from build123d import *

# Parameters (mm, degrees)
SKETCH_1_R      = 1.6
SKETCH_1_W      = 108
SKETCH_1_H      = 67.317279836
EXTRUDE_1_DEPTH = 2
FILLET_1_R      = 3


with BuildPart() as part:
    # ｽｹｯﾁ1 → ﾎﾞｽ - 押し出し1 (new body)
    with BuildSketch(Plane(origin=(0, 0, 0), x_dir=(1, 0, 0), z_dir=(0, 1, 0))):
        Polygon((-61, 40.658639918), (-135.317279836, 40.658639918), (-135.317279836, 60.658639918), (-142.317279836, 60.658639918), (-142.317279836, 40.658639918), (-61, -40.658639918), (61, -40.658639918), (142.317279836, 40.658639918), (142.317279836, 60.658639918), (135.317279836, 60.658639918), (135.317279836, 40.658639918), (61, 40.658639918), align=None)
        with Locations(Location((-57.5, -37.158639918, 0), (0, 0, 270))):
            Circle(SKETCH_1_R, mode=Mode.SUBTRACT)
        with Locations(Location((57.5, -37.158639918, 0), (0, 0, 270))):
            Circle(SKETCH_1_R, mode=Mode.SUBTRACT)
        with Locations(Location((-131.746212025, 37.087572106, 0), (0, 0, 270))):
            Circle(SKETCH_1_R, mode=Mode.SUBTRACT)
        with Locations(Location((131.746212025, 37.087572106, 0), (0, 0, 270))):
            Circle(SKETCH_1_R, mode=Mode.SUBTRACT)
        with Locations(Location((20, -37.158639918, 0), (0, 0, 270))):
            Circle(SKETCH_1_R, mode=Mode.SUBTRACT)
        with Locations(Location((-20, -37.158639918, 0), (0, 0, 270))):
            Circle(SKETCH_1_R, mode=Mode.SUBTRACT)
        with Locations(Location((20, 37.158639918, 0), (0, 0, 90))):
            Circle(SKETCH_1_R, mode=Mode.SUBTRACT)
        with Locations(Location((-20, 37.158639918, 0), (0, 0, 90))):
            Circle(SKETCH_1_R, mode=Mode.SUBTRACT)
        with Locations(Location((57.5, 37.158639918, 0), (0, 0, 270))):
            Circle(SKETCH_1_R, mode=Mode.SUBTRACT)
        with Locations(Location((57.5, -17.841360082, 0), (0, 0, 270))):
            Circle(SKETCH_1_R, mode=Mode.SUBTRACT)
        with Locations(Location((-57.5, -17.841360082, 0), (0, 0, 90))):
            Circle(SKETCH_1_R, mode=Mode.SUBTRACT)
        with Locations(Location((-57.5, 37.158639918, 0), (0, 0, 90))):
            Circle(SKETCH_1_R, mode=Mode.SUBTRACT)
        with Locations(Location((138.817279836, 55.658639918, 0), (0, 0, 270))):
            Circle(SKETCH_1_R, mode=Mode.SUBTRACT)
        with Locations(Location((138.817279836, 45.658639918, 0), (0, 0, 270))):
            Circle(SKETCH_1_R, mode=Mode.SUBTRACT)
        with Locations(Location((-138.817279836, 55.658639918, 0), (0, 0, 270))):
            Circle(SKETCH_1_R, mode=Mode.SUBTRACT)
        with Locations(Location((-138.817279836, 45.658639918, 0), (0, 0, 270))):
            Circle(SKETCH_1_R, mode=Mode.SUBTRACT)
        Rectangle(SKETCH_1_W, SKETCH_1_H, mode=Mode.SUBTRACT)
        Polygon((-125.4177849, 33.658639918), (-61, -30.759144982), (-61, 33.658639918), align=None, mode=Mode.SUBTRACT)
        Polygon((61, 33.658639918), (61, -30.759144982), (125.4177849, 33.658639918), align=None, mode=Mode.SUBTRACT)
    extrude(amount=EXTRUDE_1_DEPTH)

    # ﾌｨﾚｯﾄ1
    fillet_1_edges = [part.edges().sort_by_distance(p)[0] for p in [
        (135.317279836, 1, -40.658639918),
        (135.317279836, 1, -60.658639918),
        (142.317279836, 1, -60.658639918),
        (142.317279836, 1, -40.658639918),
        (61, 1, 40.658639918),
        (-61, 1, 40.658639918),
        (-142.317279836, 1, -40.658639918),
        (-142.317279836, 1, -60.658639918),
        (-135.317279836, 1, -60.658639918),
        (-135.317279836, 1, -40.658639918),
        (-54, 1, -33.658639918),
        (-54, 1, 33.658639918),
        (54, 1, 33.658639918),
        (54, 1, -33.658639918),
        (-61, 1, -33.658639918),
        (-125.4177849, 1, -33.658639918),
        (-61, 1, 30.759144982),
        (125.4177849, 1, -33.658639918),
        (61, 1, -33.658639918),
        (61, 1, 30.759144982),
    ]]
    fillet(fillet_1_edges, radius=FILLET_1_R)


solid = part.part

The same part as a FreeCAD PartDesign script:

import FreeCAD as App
import Part
import Sketcher


def edges_at(feature, points):
    """Names of the edges that pass closest to the given points."""
    edges = feature.Shape.Edges
    near = lambda p: min(range(len(edges)), key=lambda i: edges[i].distToShape(Part.Vertex(*p))[0])
    return sorted({f"Edge{near(p) + 1}" for p in points})

doc = App.newDocument("Part")
params = doc.addObject("Spreadsheet::Sheet", "Params")
for row, (alias, value) in enumerate([
    ("sketch1_diameter", "3.2 mm"),
    ("sketch1_width", "7 mm"),
    ("sketch1_width2", "122 mm"),
    ("sketch1_width3", "108 mm"),
    ("sketch1_height", "20 mm"),
    ("pad1_length", "2 mm"),
    ("fillet_radius", "3 mm"),
], start=1):
    params.set(f"A{row}", alias)
    params.set(f"B{row}", "=" + value)
    params.setAlias(f"B{row}", alias)

body = doc.addObject("PartDesign::Body", "Body")

# Sketch on XZ plane
sketch1 = body.newObject("Sketcher::SketchObject", "Sketch")
sketch1.AttachmentSupport = (doc.getObject("XZ_Plane"), [""])
sketch1.MapMode = "FlatFace"
sketch1.addGeometry([
    Part.LineSegment(App.Vector(-135.3, -40.7, 0), App.Vector(-135.3, -60.7, 0)),  # 0
    Part.LineSegment(App.Vector(-135.3, -60.7, 0), App.Vector(-142.3, -60.7, 0)),  # 1
    Part.LineSegment(App.Vector(-142.3, -60.7, 0), App.Vector(-142.3, -40.7, 0)),  # 2
    Part.LineSegment(App.Vector(-142.3, -40.7, 0), App.Vector(-61, 40.7, 0)),  # 3
    Part.LineSegment(App.Vector(-61, 40.7, 0), App.Vector(61, 40.7, 0)),  # 4
    Part.LineSegment(App.Vector(61, 40.7, 0), App.Vector(142.3, -40.7, 0)),  # 5
    Part.LineSegment(App.Vector(142.3, -40.7, 0), App.Vector(142.3, -60.7, 0)),  # 6
    Part.LineSegment(App.Vector(142.3, -60.7, 0), App.Vector(135.3, -60.7, 0)),  # 7
    Part.LineSegment(App.Vector(135.3, -60.7, 0), App.Vector(135.3, -40.7, 0)),  # 8
    Part.LineSegment(App.Vector(135.3, -40.7, 0), App.Vector(-135.3, -40.7, 0)),  # 9
    Part.Circle(App.Vector(-57.5, 37.2, 0), App.Vector(0, 0, 1), 1.6),  # 10
    Part.Circle(App.Vector(-20, 37.2, 0), App.Vector(0, 0, 1), 1.6),  # 11
    Part.Circle(App.Vector(-57.5, 17.8, 0), App.Vector(0, 0, 1), 1.6),  # 12
    Part.LineSegment(App.Vector(-61, 30.8, 0), App.Vector(-125.4, -33.7, 0)),  # 13
    Part.LineSegment(App.Vector(-125.4, -33.7, 0), App.Vector(-61, -33.7, 0)),  # 14
    Part.LineSegment(App.Vector(-61, -33.7, 0), App.Vector(-61, 30.8, 0)),  # 15
    Part.Circle(App.Vector(20, 37.2, 0), App.Vector(0, 0, 1), 1.6),  # 16
    Part.Circle(App.Vector(57.5, 37.2, 0), App.Vector(0, 0, 1), 1.6),  # 17
    Part.Circle(App.Vector(57.5, 17.8, 0), App.Vector(0, 0, 1), 1.6),  # 18
    Part.LineSegment(App.Vector(54, 33.7, 0), App.Vector(-54, 33.7, 0)),  # 19
    Part.LineSegment(App.Vector(-54, 33.7, 0), App.Vector(-54, -33.7, 0)),  # 20
    Part.LineSegment(App.Vector(-54, -33.7, 0), App.Vector(54, -33.7, 0)),  # 21
    Part.LineSegment(App.Vector(54, -33.7, 0), App.Vector(54, 33.7, 0)),  # 22
    Part.LineSegment(App.Vector(61, 30.8, 0), App.Vector(61, -33.7, 0)),  # 23
    Part.LineSegment(App.Vector(61, -33.7, 0), App.Vector(125.4, -33.7, 0)),  # 24
    Part.LineSegment(App.Vector(125.4, -33.7, 0), App.Vector(61, 30.8, 0)),  # 25
    Part.Circle(App.Vector(-131.7, -37.1, 0), App.Vector(0, 0, 1), 1.6),  # 26
    Part.Circle(App.Vector(-138.8, -45.7, 0), App.Vector(0, 0, 1), 1.6),  # 27
    Part.Circle(App.Vector(-138.8, -55.7, 0), App.Vector(0, 0, 1), 1.6),  # 28
    Part.Circle(App.Vector(-57.5, -37.2, 0), App.Vector(0, 0, 1), 1.6),  # 29
    Part.Circle(App.Vector(-20, -37.2, 0), App.Vector(0, 0, 1), 1.6),  # 30
    Part.Circle(App.Vector(20, -37.2, 0), App.Vector(0, 0, 1), 1.6),  # 31
    Part.Circle(App.Vector(57.5, -37.2, 0), App.Vector(0, 0, 1), 1.6),  # 32
    Part.Circle(App.Vector(131.7, -37.1, 0), App.Vector(0, 0, 1), 1.6),  # 33
    Part.Circle(App.Vector(138.8, -45.7, 0), App.Vector(0, 0, 1), 1.6),  # 34
    Part.Circle(App.Vector(138.8, -55.7, 0), App.Vector(0, 0, 1), 1.6),  # 35
], False)
sketch1.addConstraint([
    Sketcher.Constraint("Coincident", 0, 2, 1, 1),
    Sketcher.Constraint("Coincident", 1, 2, 2, 1),
    Sketcher.Constraint("Coincident", 2, 2, 3, 1),
    Sketcher.Constraint("Coincident", 3, 2, 4, 1),
    Sketcher.Constraint("Coincident", 4, 2, 5, 1),
    Sketcher.Constraint("Coincident", 5, 2, 6, 1),
    Sketcher.Constraint("Coincident", 6, 2, 7, 1),
    Sketcher.Constraint("Coincident", 7, 2, 8, 1),
    Sketcher.Constraint("Coincident", 8, 2, 9, 1),
    Sketcher.Constraint("Coincident", 9, 2, 0, 1),
    Sketcher.Constraint("Coincident", 13, 2, 14, 1),
    Sketcher.Constraint("Coincident", 14, 2, 15, 1),
    Sketcher.Constraint("Coincident", 15, 2, 13, 1),
    Sketcher.Constraint("Coincident", 19, 2, 20, 1),
    Sketcher.Constraint("Coincident", 20, 2, 21, 1),
    Sketcher.Constraint("Coincident", 21, 2, 22, 1),
    Sketcher.Constraint("Coincident", 22, 2, 19, 1),
    Sketcher.Constraint("Coincident", 23, 2, 24, 1),
    Sketcher.Constraint("Coincident", 24, 2, 25, 1),
    Sketcher.Constraint("Coincident", 25, 2, 23, 1),
    Sketcher.Constraint("Vertical", 0),
    Sketcher.Constraint("Horizontal", 1),
    Sketcher.Constraint("Vertical", 2),
    Sketcher.Constraint("Horizontal", 4),
    Sketcher.Constraint("Vertical", 6),
    Sketcher.Constraint("Horizontal", 7),
    Sketcher.Constraint("Vertical", 8),
    Sketcher.Constraint("Horizontal", 9),
    Sketcher.Constraint("Horizontal", 14),
    Sketcher.Constraint("Vertical", 15),
    Sketcher.Constraint("Horizontal", 19),
    Sketcher.Constraint("Vertical", 20),
    Sketcher.Constraint("Horizontal", 21),
    Sketcher.Constraint("Vertical", 22),
    Sketcher.Constraint("Vertical", 23),
    Sketcher.Constraint("Horizontal", 24),
    Sketcher.Constraint("Equal", 10, 11),
    Sketcher.Constraint("Equal", 11, 12),
    Sketcher.Constraint("Equal", 12, 16),
    Sketcher.Constraint("Equal", 16, 17),
    Sketcher.Constraint("Equal", 17, 18),
    Sketcher.Constraint("Equal", 18, 26),
    Sketcher.Constraint("Equal", 26, 27),
    Sketcher.Constraint("Equal", 27, 28),
    Sketcher.Constraint("Equal", 28, 29),
    Sketcher.Constraint("Equal", 29, 30),
    Sketcher.Constraint("Equal", 30, 31),
    Sketcher.Constraint("Equal", 31, 32),
    Sketcher.Constraint("Equal", 32, 33),
    Sketcher.Constraint("Equal", 33, 34),
    Sketcher.Constraint("Equal", 34, 35),
    Sketcher.Constraint("Symmetric", 17, 3, 29, 3, -1, 1),
    Sketcher.Constraint("Symmetric", 16, 3, 30, 3, -1, 1),
    Sketcher.Constraint("Symmetric", 11, 3, 31, 3, -1, 1),
    Sketcher.Constraint("Symmetric", 10, 3, 32, 3, -1, 1),
    Sketcher.Constraint("Symmetric", 19, 2, 21, 2, -1, 1),
    Sketcher.Constraint("Symmetric", 11, 3, 16, 3, -2),
    Sketcher.Constraint("Symmetric", 10, 3, 17, 3, -2),
    Sketcher.Constraint("Symmetric", 12, 3, 18, 3, -2),
    Sketcher.Constraint("Symmetric", 26, 3, 33, 3, -2),
    Sketcher.Constraint("Symmetric", 27, 3, 34, 3, -2),
    Sketcher.Constraint("Symmetric", 28, 3, 35, 3, -2),
    Sketcher.Constraint("Symmetric", 2, 2, 5, 2, -2),
    Sketcher.Constraint("Symmetric", 0, 2, 7, 2, -2),
    Sketcher.Constraint("Symmetric", 14, 2, 23, 2, -2),
    Sketcher.Constraint("Perpendicular", 3, 5),
    Sketcher.Constraint("Perpendicular", 5, 13),
    Sketcher.Constraint("Perpendicular", 13, 25),
    Sketcher.Constraint("Horizontal", 10, 3, 11, 3),
    Sketcher.Constraint("Horizontal", 5, 2, 8, 2),
    Sketcher.Constraint("Horizontal", 14, 2, 20, 2),
    Sketcher.Constraint("Horizontal", 15, 2, 25, 2),
    Sketcher.Constraint("Vertical", 10, 3, 12, 3),
    Sketcher.Constraint("Vertical", 27, 3, 28, 3),
    Sketcher.Constraint("Vertical", 3, 2, 14, 2),
    Sketcher.Constraint("Vertical", 4, 2, 23, 2),
    Sketcher.Constraint("Diameter", 10, 3.2),
    Sketcher.Constraint("DistanceX", 1, 2, 1, 1, 7.0),
    Sketcher.Constraint("DistanceX", 4, 1, 4, 2, 122.0),
    Sketcher.Constraint("DistanceX", 19, 2, 19, 1, 108.0),
    Sketcher.Constraint("DistanceY", 0, 2, 0, 1, 20.0),
    Sketcher.Constraint("Distance", 3, 115.0),
    Sketcher.Constraint("DistanceX", 11, 3, -1, 1, 20.0),
    Sketcher.Constraint("DistanceX", 10, 3, 17, 3, 115.0),
    Sketcher.Constraint("DistanceY", 28, 3, 27, 3, 10.0),
    Sketcher.Constraint("DistanceY", 29, 3, 12, 3, 55.0),
    Sketcher.Constraint("DistanceY", 0, 2, 28, 3, 5.0),
    Sketcher.Constraint("DistanceY", 9, 2, 13, 2, 7.0),
    Sketcher.Constraint("DistanceY", 19, 2, 3, 2, 7.0),
    Sketcher.Constraint("DistanceY", 27, 3, 12, 3, 63.5),
    Sketcher.Constraint("DistanceX", 28, 3, 0, 2, 3.5),
    Sketcher.Constraint("DistanceX", 14, 1, 14, 2, 64.417785),
    Sketcher.Constraint("DistanceX", 26, 3, -1, 1, 131.746212),
    Sketcher.Constraint("DistanceY", 26, 3, -1, 1, 37.087572),
])
sketch1.setExpression("Constraints[76]", "Params.sketch1_diameter")
sketch1.setExpression("Constraints[77]", "Params.sketch1_width")
sketch1.setExpression("Constraints[78]", "Params.sketch1_width2")
sketch1.setExpression("Constraints[79]", "Params.sketch1_width3")
sketch1.setExpression("Constraints[80]", "Params.sketch1_height")
pad1 = body.newObject("PartDesign::Pad", "Pad")
pad1.Profile = sketch1
pad1.setExpression("Length", "Params.pad1_length")
pad1.Reversed = True
doc.recompute()

fillet = body.newObject("PartDesign::Fillet", "Fillet")
fillet.Base = (pad1, edges_at(pad1, [
    (135.317, 1, -40.659),
    (135.317, 1, -60.659),
    (142.317, 1, -60.659),
    (142.317, 1, -40.659),
    (61, 1, 40.659),
    (-61, 1, 40.659),
    (-142.317, 1, -40.659),
    (-142.317, 1, -60.659),
    (-135.317, 1, -60.659),
    (-135.317, 1, -40.659),
    (-54, 1, -33.659),
    (-54, 1, 33.659),
    (54, 1, 33.659),
    (54, 1, -33.659),
    (-61, 1, -33.659),
    (-125.418, 1, -33.659),
    (-61, 1, 30.759),
    (125.418, 1, -33.659),
    (61, 1, -33.659),
    (61, 1, 30.759),
]))
fillet.setExpression("Radius", "Params.fillet_radius")

doc.recompute()
